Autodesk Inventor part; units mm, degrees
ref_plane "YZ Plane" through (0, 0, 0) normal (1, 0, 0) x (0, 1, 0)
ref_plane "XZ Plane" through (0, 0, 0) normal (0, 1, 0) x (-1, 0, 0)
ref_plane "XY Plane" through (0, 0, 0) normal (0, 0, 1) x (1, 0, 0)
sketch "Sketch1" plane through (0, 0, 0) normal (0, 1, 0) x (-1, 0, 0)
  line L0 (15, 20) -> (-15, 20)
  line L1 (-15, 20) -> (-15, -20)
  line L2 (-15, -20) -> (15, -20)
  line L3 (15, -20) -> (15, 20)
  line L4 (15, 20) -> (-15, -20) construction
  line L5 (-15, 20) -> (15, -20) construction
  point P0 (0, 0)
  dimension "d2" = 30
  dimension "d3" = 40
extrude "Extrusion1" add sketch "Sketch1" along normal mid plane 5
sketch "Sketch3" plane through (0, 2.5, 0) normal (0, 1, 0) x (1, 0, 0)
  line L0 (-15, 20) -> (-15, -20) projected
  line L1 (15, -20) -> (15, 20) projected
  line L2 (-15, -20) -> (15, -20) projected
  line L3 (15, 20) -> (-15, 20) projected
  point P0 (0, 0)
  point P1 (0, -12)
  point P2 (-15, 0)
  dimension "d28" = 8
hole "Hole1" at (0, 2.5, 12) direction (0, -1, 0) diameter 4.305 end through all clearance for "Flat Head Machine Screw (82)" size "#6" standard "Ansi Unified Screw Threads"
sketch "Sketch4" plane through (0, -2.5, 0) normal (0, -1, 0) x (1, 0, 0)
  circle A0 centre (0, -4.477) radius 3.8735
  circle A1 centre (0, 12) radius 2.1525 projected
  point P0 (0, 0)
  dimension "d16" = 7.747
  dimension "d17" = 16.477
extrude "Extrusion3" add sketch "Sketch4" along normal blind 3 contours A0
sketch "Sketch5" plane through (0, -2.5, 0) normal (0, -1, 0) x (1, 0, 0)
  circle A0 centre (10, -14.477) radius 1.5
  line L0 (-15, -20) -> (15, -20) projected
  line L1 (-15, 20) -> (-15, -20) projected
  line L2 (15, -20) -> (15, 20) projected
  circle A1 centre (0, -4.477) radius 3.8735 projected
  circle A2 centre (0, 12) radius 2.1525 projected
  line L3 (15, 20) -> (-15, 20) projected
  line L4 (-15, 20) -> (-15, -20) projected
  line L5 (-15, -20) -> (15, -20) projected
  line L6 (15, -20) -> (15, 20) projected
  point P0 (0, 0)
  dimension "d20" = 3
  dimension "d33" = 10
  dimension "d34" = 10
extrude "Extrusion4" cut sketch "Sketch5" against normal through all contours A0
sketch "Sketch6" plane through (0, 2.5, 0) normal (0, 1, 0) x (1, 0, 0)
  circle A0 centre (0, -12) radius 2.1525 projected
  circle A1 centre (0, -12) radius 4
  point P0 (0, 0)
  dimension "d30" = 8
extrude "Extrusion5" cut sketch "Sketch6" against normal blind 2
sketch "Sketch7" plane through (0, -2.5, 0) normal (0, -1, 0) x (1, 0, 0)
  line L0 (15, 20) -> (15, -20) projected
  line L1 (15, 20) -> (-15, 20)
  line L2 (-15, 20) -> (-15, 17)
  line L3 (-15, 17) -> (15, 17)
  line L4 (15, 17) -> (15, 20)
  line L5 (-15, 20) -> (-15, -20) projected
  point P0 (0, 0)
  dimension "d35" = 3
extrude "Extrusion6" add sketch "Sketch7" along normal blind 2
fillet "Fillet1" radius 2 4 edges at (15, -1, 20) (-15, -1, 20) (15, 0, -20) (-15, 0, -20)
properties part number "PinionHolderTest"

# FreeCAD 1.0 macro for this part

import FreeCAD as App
import Part
import Sketcher
from FreeCAD import Vector
Q = App.Units.Quantity


def edges_at(feature, points):
    """Names of the edges that pass closest to the given points."""
    edges = feature.Shape.Edges
    near = lambda p: min(range(len(edges)), key=lambda i: edges[i].distToShape(Part.Vertex(*p))[0])
    return sorted({f"Edge{near(p) + 1}" for p in points})

doc = App.newDocument("Part")
body = doc.addObject("PartDesign::Body", "Body")

sketch1 = body.newObject("Sketcher::SketchObject", "Sketch")
sketch1.AttachmentSupport = (doc.getObject("XZ_Plane"), [""])
sketch1.MapMode = "FlatFace"
sketch1.addGeometry([
    Part.LineSegment(Vector(-15, -20, 0), Vector(-15, 20, 0)),
    Part.LineSegment(Vector(-15, 20, 0), Vector(15, 20, 0)),
    Part.LineSegment(Vector(15, 20, 0), Vector(15, -20, 0)),
    Part.LineSegment(Vector(15, -20, 0), Vector(-15, -20, 0)),
], False)
sketch1.addConstraint([
    Sketcher.Constraint("Coincident", 0, 2, 1, 1),
    Sketcher.Constraint("Coincident", 1, 2, 2, 1),
    Sketcher.Constraint("Coincident", 2, 2, 3, 1),
    Sketcher.Constraint("Coincident", 3, 2, 0, 1),
    Sketcher.Constraint("Vertical", 0),
    Sketcher.Constraint("Horizontal", 1),
    Sketcher.Constraint("Vertical", 2),
    Sketcher.Constraint("Horizontal", 3),
    Sketcher.Constraint("Symmetric", 0, 2, 2, 2, -1, 1),
    Sketcher.Constraint("DistanceX", 1, 1, 1, 2, Q("30 mm")),
    Sketcher.Constraint("DistanceY", 0, 1, 0, 2, Q("40 mm")),
])
pad1 = body.newObject("PartDesign::Pad", "Pad")
pad1.Profile = sketch1
pad1.Length = 5
pad1.Midplane = True

sketch2 = body.newObject("Sketcher::SketchObject", "Sketch001")
sketch2.AttachmentSupport = (doc.getObject("XZ_Plane"), [""])
sketch2.MapMode = "FlatFace"
sketch2.AttachmentOffset = App.Placement(Vector(0, 0, -2.5), App.Rotation())
sketch2.addGeometry(Part.Circle(Vector(0, 12, 0), Vector(0, 0, 1), 2.2), False)
sketch2.addConstraint([
    Sketcher.Constraint("PointOnObject", 0, 3, -2),
    Sketcher.Constraint("Diameter", 0, Q("4.305 mm")),
    Sketcher.Constraint("DistanceY", -1, 1, 0, 3, Q("12 mm")),
])
doc.recompute()
hole = body.newObject("PartDesign::Hole", "Hole")
hole.Profile = sketch2
hole.ThreadType = "None"
hole.Diameter = 4.305
hole.DepthType = "ThroughAll"
hole.Reversed = True

sketch3 = body.newObject("Sketcher::SketchObject", "Sketch002")
sketch3.AttachmentSupport = (doc.getObject("XZ_Plane"), [""])
sketch3.MapMode = "FlatFace"
sketch3.AttachmentOffset = App.Placement(Vector(0, 0, 2.5), App.Rotation())
sketch3.addGeometry(Part.Circle(Vector(0, -4.5, 0), Vector(0, 0, 1), 3.9), False)
sketch3.addConstraint([
    Sketcher.Constraint("PointOnObject", 0, 3, -2),
    Sketcher.Constraint("Diameter", 0, Q("7.747 mm")),
    Sketcher.Constraint("DistanceY", 0, 3, -1, 1, Q("4.477 mm")),
])
pad2 = body.newObject("PartDesign::Pad", "Pad001")
pad2.Profile = sketch3
pad2.Length = 3

sketch4 = body.newObject("Sketcher::SketchObject", "Sketch003")
sketch4.AttachmentSupport = (doc.getObject("XZ_Plane"), [""])
sketch4.MapMode = "FlatFace"
sketch4.AttachmentOffset = App.Placement(Vector(0, 0, 2.5), App.Rotation())
sketch4.addGeometry(Part.Circle(Vector(10, -14.5, 0), Vector(0, 0, 1), 1.5), False)
sketch4.addConstraint([
    Sketcher.Constraint("Diameter", 0, Q("3 mm")),
    Sketcher.Constraint("DistanceX", -1, 1, 0, 3, Q("10 mm")),
    Sketcher.Constraint("DistanceY", 0, 3, -1, 1, Q("14.477 mm")),
])
pocket1 = body.newObject("PartDesign::Pocket", "Pocket")
pocket1.Profile = sketch4
pocket1.Type = "ThroughAll"

sketch5 = body.newObject("Sketcher::SketchObject", "Sketch004")
sketch5.AttachmentSupport = (doc.getObject("XZ_Plane"), [""])
sketch5.MapMode = "FlatFace"
sketch5.AttachmentOffset = App.Placement(Vector(0, 0, -2.5), App.Rotation())
sketch5.addGeometry([
    Part.Circle(Vector(0, 12, 0), Vector(0, 0, 1), 4),
    Part.Circle(Vector(0, 12, 0), Vector(0, 0, 1), 2.2),
], False)
sketch5.addConstraint([
    Sketcher.Constraint("Coincident", 1, 3, 0, 3),
    Sketcher.Constraint("PointOnObject", 0, 3, -2),
    Sketcher.Constraint("Diameter", 0, Q("8 mm")),
    Sketcher.Constraint("Diameter", 1, Q("4.305 mm")),
    Sketcher.Constraint("DistanceY", -1, 1, 0, 3, Q("12 mm")),
])
pocket2 = body.newObject("PartDesign::Pocket", "Pocket001")
pocket2.Profile = sketch5
pocket2.Length = 2
pocket2.Reversed = True

sketch6 = body.newObject("Sketcher::SketchObject", "Sketch005")
sketch6.AttachmentSupport = (doc.getObject("XZ_Plane"), [""])
sketch6.MapMode = "FlatFace"
sketch6.AttachmentOffset = App.Placement(Vector(0, 0, 2.5), App.Rotation())
sketch6.addGeometry([
    Part.LineSegment(Vector(15, 17, 0), Vector(15, 20, 0)),
    Part.LineSegment(Vector(15, 20, 0), Vector(-15, 20, 0)),
    Part.LineSegment(Vector(-15, 20, 0), Vector(-15, 17, 0)),
    Part.LineSegment(Vector(-15, 17, 0), Vector(15, 17, 0)),
], False)
sketch6.addConstraint([
    Sketcher.Constraint("Coincident", 0, 2, 1, 1),
    Sketcher.Constraint("Coincident", 1, 2, 2, 1),
    Sketcher.Constraint("Coincident", 2, 2, 3, 1),
    Sketcher.Constraint("Coincident", 3, 2, 0, 1),
    Sketcher.Constraint("Vertical", 0),
    Sketcher.Constraint("Horizontal", 1),
    Sketcher.Constraint("Vertical", 2),
    Sketcher.Constraint("Horizontal", 3),
    Sketcher.Constraint("DistanceY", 0, 1, 0, 2, Q("3 mm")),
    Sketcher.Constraint("DistanceX", 1, 2, 1, 1, Q("30 mm")),
    Sketcher.Constraint("DistanceX", -1, 1, 0, 2, Q("15 mm")),
    Sketcher.Constraint("DistanceY", -1, 1, 0, 2, Q("20 mm")),
])
pad3 = body.newObject("PartDesign::Pad", "Pad002")
pad3.Profile = sketch6
pad3.Length = 2
doc.recompute()

fillet = body.newObject("PartDesign::Fillet", "Fillet")
fillet.Base = (pad3, edges_at(pad3, [
    (15, -1, 20),
    (-15, -1, 20),
    (15, 0, -20),
    (-15, 0, -20),
]))
fillet.Radius = 2

doc.recompute()
